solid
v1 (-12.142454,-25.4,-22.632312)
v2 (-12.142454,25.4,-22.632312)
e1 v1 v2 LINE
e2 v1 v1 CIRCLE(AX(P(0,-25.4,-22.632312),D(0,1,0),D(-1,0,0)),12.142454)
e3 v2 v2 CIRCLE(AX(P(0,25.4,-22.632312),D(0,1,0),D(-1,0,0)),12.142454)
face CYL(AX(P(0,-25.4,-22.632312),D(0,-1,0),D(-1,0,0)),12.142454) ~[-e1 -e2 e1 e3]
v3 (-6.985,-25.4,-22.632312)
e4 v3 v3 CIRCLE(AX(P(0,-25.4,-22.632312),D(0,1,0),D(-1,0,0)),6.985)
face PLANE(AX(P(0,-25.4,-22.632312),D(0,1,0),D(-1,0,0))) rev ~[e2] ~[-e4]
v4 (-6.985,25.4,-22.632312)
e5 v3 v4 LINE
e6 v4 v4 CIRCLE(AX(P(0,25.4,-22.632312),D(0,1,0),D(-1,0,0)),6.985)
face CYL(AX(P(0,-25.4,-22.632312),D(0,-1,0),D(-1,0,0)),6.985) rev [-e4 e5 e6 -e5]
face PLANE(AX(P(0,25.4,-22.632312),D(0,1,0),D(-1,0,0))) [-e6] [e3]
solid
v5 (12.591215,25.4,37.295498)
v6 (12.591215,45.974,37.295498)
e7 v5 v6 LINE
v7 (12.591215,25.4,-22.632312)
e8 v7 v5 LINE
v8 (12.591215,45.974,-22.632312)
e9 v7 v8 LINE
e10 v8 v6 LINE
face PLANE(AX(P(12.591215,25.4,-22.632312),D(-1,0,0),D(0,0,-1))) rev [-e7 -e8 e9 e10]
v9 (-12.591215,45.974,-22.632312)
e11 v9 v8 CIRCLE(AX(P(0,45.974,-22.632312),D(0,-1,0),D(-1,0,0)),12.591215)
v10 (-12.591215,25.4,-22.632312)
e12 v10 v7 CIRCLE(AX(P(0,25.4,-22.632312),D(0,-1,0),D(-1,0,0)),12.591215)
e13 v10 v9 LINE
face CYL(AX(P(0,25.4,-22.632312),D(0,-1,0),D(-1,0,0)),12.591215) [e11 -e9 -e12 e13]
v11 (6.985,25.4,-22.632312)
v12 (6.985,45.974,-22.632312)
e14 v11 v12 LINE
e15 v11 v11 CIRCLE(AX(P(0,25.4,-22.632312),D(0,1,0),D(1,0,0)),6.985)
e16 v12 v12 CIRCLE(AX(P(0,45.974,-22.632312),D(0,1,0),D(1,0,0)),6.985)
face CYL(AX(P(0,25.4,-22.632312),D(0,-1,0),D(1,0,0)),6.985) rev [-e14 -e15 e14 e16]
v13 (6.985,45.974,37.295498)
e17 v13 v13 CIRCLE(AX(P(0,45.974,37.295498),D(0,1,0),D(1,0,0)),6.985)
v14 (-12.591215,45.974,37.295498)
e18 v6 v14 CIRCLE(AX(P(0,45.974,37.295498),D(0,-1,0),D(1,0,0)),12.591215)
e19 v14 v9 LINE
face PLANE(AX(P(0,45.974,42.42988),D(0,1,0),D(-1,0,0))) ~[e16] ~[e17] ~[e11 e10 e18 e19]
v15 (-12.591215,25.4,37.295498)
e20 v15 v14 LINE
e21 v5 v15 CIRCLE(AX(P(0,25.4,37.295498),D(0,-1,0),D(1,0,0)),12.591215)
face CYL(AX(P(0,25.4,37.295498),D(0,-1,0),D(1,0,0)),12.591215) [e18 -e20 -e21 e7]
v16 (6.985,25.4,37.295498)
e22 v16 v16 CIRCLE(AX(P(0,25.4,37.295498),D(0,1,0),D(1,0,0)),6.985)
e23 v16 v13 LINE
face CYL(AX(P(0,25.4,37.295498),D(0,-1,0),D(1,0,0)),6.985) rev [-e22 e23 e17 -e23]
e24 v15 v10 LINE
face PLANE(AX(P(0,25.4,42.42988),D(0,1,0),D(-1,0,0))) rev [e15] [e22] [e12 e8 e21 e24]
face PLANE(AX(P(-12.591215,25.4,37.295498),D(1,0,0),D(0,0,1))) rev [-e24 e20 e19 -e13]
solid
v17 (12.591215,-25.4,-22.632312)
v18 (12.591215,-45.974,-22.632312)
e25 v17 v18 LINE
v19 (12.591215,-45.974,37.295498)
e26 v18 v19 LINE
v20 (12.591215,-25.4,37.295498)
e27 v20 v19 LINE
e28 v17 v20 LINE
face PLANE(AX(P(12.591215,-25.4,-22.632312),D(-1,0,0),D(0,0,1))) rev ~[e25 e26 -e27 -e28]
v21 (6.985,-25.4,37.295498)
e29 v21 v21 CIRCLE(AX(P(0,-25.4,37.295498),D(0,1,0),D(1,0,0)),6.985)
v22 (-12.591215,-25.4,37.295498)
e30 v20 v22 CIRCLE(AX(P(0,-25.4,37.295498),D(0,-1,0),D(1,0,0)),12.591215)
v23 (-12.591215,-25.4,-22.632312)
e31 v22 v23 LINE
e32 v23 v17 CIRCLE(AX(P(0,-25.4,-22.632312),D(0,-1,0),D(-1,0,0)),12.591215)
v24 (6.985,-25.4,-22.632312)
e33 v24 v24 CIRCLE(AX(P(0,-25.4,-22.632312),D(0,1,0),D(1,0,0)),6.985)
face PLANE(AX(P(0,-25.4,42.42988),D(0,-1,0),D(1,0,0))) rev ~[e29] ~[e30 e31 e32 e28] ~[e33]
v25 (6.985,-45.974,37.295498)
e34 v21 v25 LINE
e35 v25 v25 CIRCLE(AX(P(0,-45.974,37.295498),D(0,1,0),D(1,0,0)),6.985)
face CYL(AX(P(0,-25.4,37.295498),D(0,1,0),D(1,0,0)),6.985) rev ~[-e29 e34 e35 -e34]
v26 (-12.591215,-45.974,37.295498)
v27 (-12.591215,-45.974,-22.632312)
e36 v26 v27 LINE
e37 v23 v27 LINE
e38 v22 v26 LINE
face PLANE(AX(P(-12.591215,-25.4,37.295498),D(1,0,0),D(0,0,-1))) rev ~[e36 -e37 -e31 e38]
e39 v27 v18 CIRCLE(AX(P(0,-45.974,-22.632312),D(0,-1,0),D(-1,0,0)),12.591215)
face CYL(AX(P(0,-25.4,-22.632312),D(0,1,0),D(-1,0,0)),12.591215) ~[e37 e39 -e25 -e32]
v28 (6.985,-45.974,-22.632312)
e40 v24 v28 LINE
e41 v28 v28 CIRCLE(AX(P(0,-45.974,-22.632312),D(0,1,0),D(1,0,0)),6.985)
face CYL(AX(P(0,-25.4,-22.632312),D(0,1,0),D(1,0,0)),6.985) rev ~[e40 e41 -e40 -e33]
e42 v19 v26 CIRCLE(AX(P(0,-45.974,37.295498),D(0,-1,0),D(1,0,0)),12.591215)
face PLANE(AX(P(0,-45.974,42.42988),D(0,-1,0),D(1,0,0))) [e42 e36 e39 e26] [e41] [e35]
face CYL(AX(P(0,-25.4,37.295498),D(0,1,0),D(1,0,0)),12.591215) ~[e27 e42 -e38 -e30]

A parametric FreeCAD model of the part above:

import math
import FreeCAD as App
import Part
import Sketcher

V = App.Vector
Q = App.Units.Quantity

doc = App.newDocument("Part")
body = doc.addObject("PartDesign::Body", "Body")

sketch1 = body.newObject("Sketcher::SketchObject", "Sketch")
sketch1.AttachmentSupport = (doc.getObject("XZ_Plane"), [""])
sketch1.MapMode = "FlatFace"
sketch1.AttachmentOffset = App.Placement(V(0, 0, 1 * 25.4), App.Rotation())
sketch1.addGeometry([
    Part.ArcOfCircle(Part.Circle(V(0, 37.295498, 0), V(0, 0, 1), 12.591215), math.radians(0), math.radians(180)),
    Part.LineSegment(V(-12.591215, 37.295498, 0), V(-12.591215, -22.632312, 0)),
    Part.ArcOfCircle(Part.Circle(V(0, -22.632312, 0), V(0, 0, 1), 12.591215), math.radians(180), math.radians(360)),
    Part.LineSegment(V(12.591215, -22.632312, 0), V(12.591215, 37.295498, 0)),
    Part.Circle(V(0, 37.295498, 0), V(0, 0, 1), 6.985),
    Part.Circle(V(0, -22.632312, 0), V(0, 0, 1), 6.985),
], False)
sketch1.addConstraint([
    Sketcher.Constraint("Tangent", 0, 2, 1, 1),
    Sketcher.Constraint("Tangent", 1, 2, 2, 1),
    Sketcher.Constraint("Tangent", 2, 2, 3, 1),
    Sketcher.Constraint("Tangent", 3, 2, 0, 1),
    Sketcher.Constraint("Vertical", 1),
    Sketcher.Constraint("Vertical", 3),
    Sketcher.Constraint("Coincident", 4, 3, 0, 3),
    Sketcher.Constraint("Coincident", 5, 3, 2, 3),
    Sketcher.Constraint("Equal", 4, 5),
    Sketcher.Constraint("PointOnObject", 0, 3, -2),
    Sketcher.Constraint("Diameter", 4, Q("0.55 in")),
    Sketcher.Constraint("Radius", 0, Q("12.591215 mm")),
    Sketcher.Constraint("DistanceY", 1, 2, 1, 1, Q("59.92781 mm")),
    Sketcher.Constraint("DistanceY", -1, 1, 0, 3, Q("37.295498 mm")),
])
pad1 = body.newObject("PartDesign::Pad", "Pad")
pad1.Profile = sketch1
pad1.Length = Q("0.81 in")
body2 = doc.addObject("PartDesign::Body", "Body001")
doc.recompute()

mirroring = doc.addObject("Part::Mirroring", "Mirroring")
mirroring.Source = body
mirroring.Base = V(0, 0, 0)
mirroring.Normal = V(0, -1, 0)
body2.BaseFeature = mirroring
doc.recompute()
body3 = doc.addObject("PartDesign::Body", "Body002")

sketch2 = body3.newObject("Sketcher::SketchObject", "Sketch001")
sketch2.AttachmentSupport = (doc.getObject("XZ_Plane002"), [""])
sketch2.MapMode = "FlatFace"
sketch2.AttachmentOffset = App.Placement(V(0, 0, 1 * 25.4), App.Rotation())
sketch2.addGeometry([
    Part.Circle(V(0, -22.632312, 0), V(0, 0, 1), 12.142454),
    Part.Circle(V(0, -22.632312, 0), V(0, 0, 1), 6.985),
], False)
sketch2.addConstraint([
    Sketcher.Constraint("Coincident", 1, 3, 0, 3),
    Sketcher.Constraint("PointOnObject", 0, 3, -2),
    Sketcher.Constraint("Diameter", 1, Q("0.55 in")),
    Sketcher.Constraint("Diameter", 0, Q("24.284908 mm")),
    Sketcher.Constraint("DistanceY", 0, 3, -1, 1, Q("22.632312 mm")),
])
pad2 = body3.newObject("PartDesign::Pad", "Pad001")
pad2.Profile = sketch2
pad2.Length = Q("2 in")
pad2.Reversed = True
mirroring.Visibility = False

doc.recompute()
